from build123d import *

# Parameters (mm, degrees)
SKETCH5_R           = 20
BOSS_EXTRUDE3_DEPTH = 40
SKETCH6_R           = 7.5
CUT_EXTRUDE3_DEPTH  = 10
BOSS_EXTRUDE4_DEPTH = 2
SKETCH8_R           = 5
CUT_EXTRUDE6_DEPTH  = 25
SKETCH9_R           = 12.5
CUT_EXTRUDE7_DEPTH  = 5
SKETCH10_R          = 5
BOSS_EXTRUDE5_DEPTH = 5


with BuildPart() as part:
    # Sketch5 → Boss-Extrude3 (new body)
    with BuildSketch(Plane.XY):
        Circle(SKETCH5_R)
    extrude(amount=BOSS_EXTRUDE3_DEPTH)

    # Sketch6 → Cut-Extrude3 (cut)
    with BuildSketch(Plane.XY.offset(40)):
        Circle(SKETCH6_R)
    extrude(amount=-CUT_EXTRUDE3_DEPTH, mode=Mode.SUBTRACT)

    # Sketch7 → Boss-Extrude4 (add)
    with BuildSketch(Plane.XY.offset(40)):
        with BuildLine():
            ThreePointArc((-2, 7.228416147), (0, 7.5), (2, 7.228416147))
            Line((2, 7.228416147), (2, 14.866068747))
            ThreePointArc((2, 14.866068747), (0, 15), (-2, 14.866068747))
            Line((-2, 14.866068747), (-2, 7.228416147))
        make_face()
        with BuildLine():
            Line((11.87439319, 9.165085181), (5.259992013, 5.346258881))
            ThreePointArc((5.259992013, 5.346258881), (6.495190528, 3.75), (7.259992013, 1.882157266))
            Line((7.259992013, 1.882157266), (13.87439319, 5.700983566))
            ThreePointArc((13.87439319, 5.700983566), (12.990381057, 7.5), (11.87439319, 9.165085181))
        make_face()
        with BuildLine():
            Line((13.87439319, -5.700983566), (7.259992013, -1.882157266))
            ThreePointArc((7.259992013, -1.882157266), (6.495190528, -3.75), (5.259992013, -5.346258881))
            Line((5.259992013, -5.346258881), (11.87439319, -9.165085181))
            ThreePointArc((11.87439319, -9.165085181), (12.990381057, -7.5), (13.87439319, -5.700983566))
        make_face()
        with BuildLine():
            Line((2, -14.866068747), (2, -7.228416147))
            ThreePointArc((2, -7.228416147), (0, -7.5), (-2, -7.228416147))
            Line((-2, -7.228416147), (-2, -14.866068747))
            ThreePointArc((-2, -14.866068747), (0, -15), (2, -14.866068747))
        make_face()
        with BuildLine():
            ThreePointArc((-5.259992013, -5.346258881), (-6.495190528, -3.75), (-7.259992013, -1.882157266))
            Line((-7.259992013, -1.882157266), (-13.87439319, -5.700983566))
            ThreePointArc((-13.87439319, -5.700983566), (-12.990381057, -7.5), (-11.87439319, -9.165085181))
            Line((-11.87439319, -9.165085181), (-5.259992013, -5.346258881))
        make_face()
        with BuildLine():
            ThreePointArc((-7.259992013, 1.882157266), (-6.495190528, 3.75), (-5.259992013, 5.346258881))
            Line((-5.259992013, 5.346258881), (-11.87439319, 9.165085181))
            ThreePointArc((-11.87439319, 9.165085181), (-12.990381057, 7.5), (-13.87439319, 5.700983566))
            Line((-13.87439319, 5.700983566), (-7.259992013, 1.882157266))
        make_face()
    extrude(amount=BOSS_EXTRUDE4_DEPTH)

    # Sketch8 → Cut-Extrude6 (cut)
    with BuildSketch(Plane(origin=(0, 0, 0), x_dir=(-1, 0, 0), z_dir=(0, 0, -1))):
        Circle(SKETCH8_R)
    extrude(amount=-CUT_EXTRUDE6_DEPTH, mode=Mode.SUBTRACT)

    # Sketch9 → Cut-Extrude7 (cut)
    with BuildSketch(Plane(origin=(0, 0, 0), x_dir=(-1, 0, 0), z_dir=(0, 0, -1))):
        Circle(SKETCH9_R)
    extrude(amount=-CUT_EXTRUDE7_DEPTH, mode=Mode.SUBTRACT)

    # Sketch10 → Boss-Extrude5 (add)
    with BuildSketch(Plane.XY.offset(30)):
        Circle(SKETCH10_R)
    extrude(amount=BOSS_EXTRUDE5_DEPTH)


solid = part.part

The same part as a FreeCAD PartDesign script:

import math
import FreeCAD as App
import Part
import Sketcher

V = App.Vector
Q = App.Units.Quantity

doc = App.newDocument("Part")
body = doc.addObject("PartDesign::Body", "Body")

# Sketch on XY plane
sketch1 = body.newObject("Sketcher::SketchObject", "Sketch")
sketch1.AttachmentSupport = (doc.getObject("XY_Plane"), [""])
sketch1.MapMode = "FlatFace"
sketch1.addGeometry(Part.Circle(V(0, 0, 0), V(0, 0, 1), 20), False)
sketch1.addConstraint(Sketcher.Constraint("Coincident", 0, 3, -1, 1))
sketch1.addConstraint(Sketcher.Constraint("Diameter", 0, Q("40 mm")))
pad1 = body.newObject("PartDesign::Pad", "Pad")
pad1.Profile = sketch1
pad1.Length = 40

# Sketch on XY plane
sketch2 = body.newObject("Sketcher::SketchObject", "Sketch001")
sketch2.AttachmentSupport = (doc.getObject("XY_Plane"), [""])
sketch2.MapMode = "FlatFace"
sketch2.AttachmentOffset = App.Placement(V(0, 0, 40), App.Rotation())
sketch2.addGeometry(Part.Circle(V(0, 0, 0), V(0, 0, 1), 8), False)
sketch2.addConstraint(Sketcher.Constraint("Coincident", 0, 3, -1, 1))
sketch2.addConstraint(Sketcher.Constraint("Diameter", 0, Q("15 mm")))
pocket1 = body.newObject("PartDesign::Pocket", "Pocket")
pocket1.Profile = sketch2
pocket1.Length = 10

# Sketch on XY plane
sketch3 = body.newObject("Sketcher::SketchObject", "Sketch002")
sketch3.AttachmentSupport = (doc.getObject("XY_Plane"), [""])
sketch3.MapMode = "FlatFace"
sketch3.AttachmentOffset = App.Placement(V(0, 0, 40), App.Rotation())
sketch3.addGeometry(Part.ArcOfCircle(Part.Circle(V(0, 0, 0), V(0, 0, 1), 7.5), math.radians(75), math.radians(105)), False)
sketch3.addGeometry(Part.LineSegment(V(2, 7.2, 0), V(2, 14.9, 0)), False)
sketch3.addGeometry(Part.ArcOfCircle(Part.Circle(V(0, 0, 0), V(0, 0, 1), 15), math.radians(82.34), math.radians(97.66)), False)
sketch3.addGeometry(Part.LineSegment(V(-2, 14.9, 0), V(-2, 7.2, 0)), False)
sketch3.addGeometry(Part.LineSegment(V(11.9, 9.2, 0), V(5.3, 5.3, 0)), False)
sketch3.addGeometry(Part.ArcOfCircle(Part.Circle(V(0, 0, 0), V(0, 0, 1), 7.5), math.radians(15), math.radians(45)), False)
sketch3.addGeometry(Part.LineSegment(V(7.3, 1.9, 0), V(13.9, 5.7, 0)), False)
sketch3.addGeometry(Part.ArcOfCircle(Part.Circle(V(0, 0, 0), V(0, 0, 1), 15), math.radians(22.34), math.radians(37.66)), False)
sketch3.addGeometry(Part.LineSegment(V(13.9, -5.7, 0), V(7.3, -1.9, 0)), False)
sketch3.addGeometry(Part.ArcOfCircle(Part.Circle(V(0, 0, 0), V(0, 0, 1), 7.5), math.radians(-45), math.radians(-15)), False)
sketch3.addGeometry(Part.LineSegment(V(5.3, -5.3, 0), V(11.9, -9.2, 0)), False)
sketch3.addGeometry(Part.ArcOfCircle(Part.Circle(V(0, 0, 0), V(0, 0, 1), 15), math.radians(-37.66), math.radians(-22.34)), False)
sketch3.addGeometry(Part.LineSegment(V(2, -14.9, 0), V(2, -7.2, 0)), False)
sketch3.addGeometry(Part.ArcOfCircle(Part.Circle(V(0, 0, 0), V(0, 0, 1), 7.5), math.radians(-105), math.radians(-75)), False)
sketch3.addGeometry(Part.LineSegment(V(-2, -7.2, 0), V(-2, -14.9, 0)), False)
sketch3.addGeometry(Part.ArcOfCircle(Part.Circle(V(0, 0, 0), V(0, 0, 1), 15), math.radians(-97.66), math.radians(-82.34)), False)
sketch3.addGeometry(Part.ArcOfCircle(Part.Circle(V(0, 0, 0), V(0, 0, 1), 7.5), math.radians(-165), math.radians(-135)), False)
sketch3.addGeometry(Part.LineSegment(V(-7.3, -1.9, 0), V(-13.9, -5.7, 0)), False)
sketch3.addGeometry(Part.ArcOfCircle(Part.Circle(V(0, 0, 0), V(0, 0, 1), 15), math.radians(-157.66), math.radians(-142.34)), False)
sketch3.addGeometry(Part.LineSegment(V(-11.9, -9.2, 0), V(-5.3, -5.3, 0)), False)
sketch3.addGeometry(Part.ArcOfCircle(Part.Circle(V(0, 0, 0), V(0, 0, 1), 7.5), math.radians(135), math.radians(165)), False)
sketch3.addGeometry(Part.LineSegment(V(-5.3, 5.3, 0), V(-11.9, 9.2, 0)), False)
sketch3.addGeometry(Part.ArcOfCircle(Part.Circle(V(0, 0, 0), V(0, 0, 1), 15), math.radians(142.34), math.radians(157.66)), False)
sketch3.addGeometry(Part.LineSegment(V(-13.9, 5.7, 0), V(-7.3, 1.9, 0)), False)
sketch3.addConstraint(Sketcher.Constraint("Coincident", 0, 1, 1, 1))
sketch3.addConstraint(Sketcher.Constraint("Coincident", 1, 2, 2, 1))
sketch3.addConstraint(Sketcher.Constraint("Coincident", 2, 2, 3, 1))
sketch3.addConstraint(Sketcher.Constraint("Coincident", 3, 2, 0, 2))
sketch3.addConstraint(Sketcher.Constraint("Coincident", 4, 2, 5, 2))
sketch3.addConstraint(Sketcher.Constraint("Coincident", 5, 1, 6, 1))
sketch3.addConstraint(Sketcher.Constraint("Coincident", 6, 2, 7, 1))
sketch3.addConstraint(Sketcher.Constraint("Coincident", 7, 2, 4, 1))
sketch3.addConstraint(Sketcher.Constraint("Coincident", 8, 2, 9, 2))
sketch3.addConstraint(Sketcher.Constraint("Coincident", 9, 1, 10, 1))
sketch3.addConstraint(Sketcher.Constraint("Coincident", 10, 2, 11, 1))
sketch3.addConstraint(Sketcher.Constraint("Coincident", 11, 2, 8, 1))
sketch3.addConstraint(Sketcher.Constraint("Coincident", 12, 2, 13, 2))
sketch3.addConstraint(Sketcher.Constraint("Coincident", 13, 1, 14, 1))
sketch3.addConstraint(Sketcher.Constraint("Coincident", 14, 2, 15, 1))
sketch3.addConstraint(Sketcher.Constraint("Coincident", 15, 2, 12, 1))
sketch3.addConstraint(Sketcher.Constraint("Coincident", 16, 1, 17, 1))
sketch3.addConstraint(Sketcher.Constraint("Coincident", 17, 2, 18, 1))
sketch3.addConstraint(Sketcher.Constraint("Coincident", 18, 2, 19, 1))
sketch3.addConstraint(Sketcher.Constraint("Coincident", 19, 2, 16, 2))
sketch3.addConstraint(Sketcher.Constraint("Coincident", 20, 1, 21, 1))
sketch3.addConstraint(Sketcher.Constraint("Coincident", 21, 2, 22, 1))
sketch3.addConstraint(Sketcher.Constraint("Coincident", 22, 2, 23, 1))
sketch3.addConstraint(Sketcher.Constraint("Coincident", 23, 2, 20, 2))
sketch3.addConstraint(Sketcher.Constraint("Vertical", 1))
sketch3.addConstraint(Sketcher.Constraint("Vertical", 3))
sketch3.addConstraint(Sketcher.Constraint("Vertical", 12))
sketch3.addConstraint(Sketcher.Constraint("Vertical", 14))
sketch3.addConstraint(Sketcher.Constraint("Coincident", 0, 3, -1, 1))
sketch3.addConstraint(Sketcher.Constraint("Coincident", 2, 3, -1, 1))
sketch3.addConstraint(Sketcher.Constraint("Coincident", 5, 3, -1, 1))
sketch3.addConstraint(Sketcher.Constraint("Coincident", 7, 3, -1, 1))
sketch3.addConstraint(Sketcher.Constraint("Coincident", 9, 3, -1, 1))
sketch3.addConstraint(Sketcher.Constraint("Coincident", 11, 3, -1, 1))
sketch3.addConstraint(Sketcher.Constraint("Coincident", 13, 3, -1, 1))
sketch3.addConstraint(Sketcher.Constraint("Coincident", 15, 3, -1, 1))
sketch3.addConstraint(Sketcher.Constraint("Coincident", 16, 3, -1, 1))
sketch3.addConstraint(Sketcher.Constraint("Coincident", 18, 3, -1, 1))
sketch3.addConstraint(Sketcher.Constraint("Coincident", 20, 3, -1, 1))
sketch3.addConstraint(Sketcher.Constraint("Coincident", 22, 3, -1, 1))
sketch3.addConstraint(Sketcher.Constraint("Equal", 0, 5))
sketch3.addConstraint(Sketcher.Constraint("Equal", 2, 7))
sketch3.addConstraint(Sketcher.Constraint("Equal", 5, 9))
sketch3.addConstraint(Sketcher.Constraint("Equal", 7, 11))
sketch3.addConstraint(Sketcher.Constraint("Equal", 9, 13))
sketch3.addConstraint(Sketcher.Constraint("Equal", 11, 15))
sketch3.addConstraint(Sketcher.Constraint("Equal", 13, 16))
sketch3.addConstraint(Sketcher.Constraint("Equal", 15, 18))
sketch3.addConstraint(Sketcher.Constraint("Equal", 16, 20))
sketch3.addConstraint(Sketcher.Constraint("Equal", 18, 22))
sketch3.addConstraint(Sketcher.Constraint("Parallel", 4, 6))
sketch3.addConstraint(Sketcher.Constraint("Parallel", 8, 10))
sketch3.addConstraint(Sketcher.Constraint("Parallel", 6, 17))
sketch3.addConstraint(Sketcher.Constraint("Parallel", 17, 19))
sketch3.addConstraint(Sketcher.Constraint("Parallel", 10, 21))
sketch3.addConstraint(Sketcher.Constraint("Parallel", 21, 23))
sketch3.addConstraint(Sketcher.Constraint("Horizontal", 1, 2, 2, 2))
sketch3.addConstraint(Sketcher.Constraint("Horizontal", 12, 2, 13, 1))
sketch3.addConstraint(Sketcher.Constraint("Horizontal", 8, 2, 16, 1))
sketch3.addConstraint(Sketcher.Constraint("Horizontal", 11, 2, 17, 2))
sketch3.addConstraint(Sketcher.Constraint("Horizontal", 10, 2, 18, 2))
sketch3.addConstraint(Sketcher.Constraint("Horizontal", 4, 2, 20, 1))
sketch3.addConstraint(Sketcher.Constraint("Horizontal", 6, 2, 22, 2))
sketch3.addConstraint(Sketcher.Constraint("Vertical", 5, 1, 8, 2))
sketch3.addConstraint(Sketcher.Constraint("Vertical", 4, 2, 9, 1))
sketch3.addConstraint(Sketcher.Constraint("Vertical", 1, 2, 12, 2))
sketch3.addConstraint(Sketcher.Constraint("Equal", 4, 6))
sketch3.addConstraint(Sketcher.Constraint("Radius", 2, Q("15 mm")))
sketch3.addConstraint(Sketcher.Constraint("Radius", 0, Q("7.5 mm")))
sketch3.addConstraint(Sketcher.Constraint("Angle", 4, Q("-150 deg")))
sketch3.addConstraint(Sketcher.Constraint("DistanceX", -1, 1, 0, 1, Q("2 mm")))
sketch3.addConstraint(Sketcher.Constraint("DistanceX", 4, 2, 5, 1, Q("2 mm")))
pad2 = body.newObject("PartDesign::Pad", "Pad001")
pad2.Profile = sketch3
pad2.Length = 2

# Sketch on XY plane
sketch4 = body.newObject("Sketcher::SketchObject", "Sketch003")
sketch4.AttachmentSupport = (doc.getObject("XY_Plane"), [""])
sketch4.MapMode = "FlatFace"
sketch4.addGeometry(Part.Circle(V(0, 0, 0), V(0, 0, 1), 5), False)
sketch4.addConstraint(Sketcher.Constraint("Coincident", 0, 3, -1, 1))
sketch4.addConstraint(Sketcher.Constraint("Diameter", 0, Q("10 mm")))
pocket2 = body.newObject("PartDesign::Pocket", "Pocket001")
pocket2.Profile = sketch4
pocket2.Length = 25
pocket2.Reversed = True

# Sketch on XY plane
sketch5 = body.newObject("Sketcher::SketchObject", "Sketch004")
sketch5.AttachmentSupport = (doc.getObject("XY_Plane"), [""])
sketch5.MapMode = "FlatFace"
sketch5.addGeometry(Part.Circle(V(0, 0, 0), V(0, 0, 1), 12), False)
sketch5.addConstraint(Sketcher.Constraint("Coincident", 0, 3, -1, 1))
sketch5.addConstraint(Sketcher.Constraint("Diameter", 0, Q("25 mm")))
pocket3 = body.newObject("PartDesign::Pocket", "Pocket002")
pocket3.Profile = sketch5
pocket3.Length = 5
pocket3.Reversed = True

# Sketch on XY plane
sketch6 = body.newObject("Sketcher::SketchObject", "Sketch005")
sketch6.AttachmentSupport = (doc.getObject("XY_Plane"), [""])
sketch6.MapMode = "FlatFace"
sketch6.AttachmentOffset = App.Placement(V(0, 0, 30), App.Rotation())
sketch6.addGeometry(Part.Circle(V(0, 0, 0), V(0, 0, 1), 5), False)
sketch6.addConstraint(Sketcher.Constraint("Coincident", 0, 3, -1, 1))
sketch6.addConstraint(Sketcher.Constraint("Diameter", 0, Q("10 mm")))
pad3 = body.newObject("PartDesign::Pad", "Pad002")
pad3.Profile = sketch6
pad3.Length = 5

doc.recompute()
